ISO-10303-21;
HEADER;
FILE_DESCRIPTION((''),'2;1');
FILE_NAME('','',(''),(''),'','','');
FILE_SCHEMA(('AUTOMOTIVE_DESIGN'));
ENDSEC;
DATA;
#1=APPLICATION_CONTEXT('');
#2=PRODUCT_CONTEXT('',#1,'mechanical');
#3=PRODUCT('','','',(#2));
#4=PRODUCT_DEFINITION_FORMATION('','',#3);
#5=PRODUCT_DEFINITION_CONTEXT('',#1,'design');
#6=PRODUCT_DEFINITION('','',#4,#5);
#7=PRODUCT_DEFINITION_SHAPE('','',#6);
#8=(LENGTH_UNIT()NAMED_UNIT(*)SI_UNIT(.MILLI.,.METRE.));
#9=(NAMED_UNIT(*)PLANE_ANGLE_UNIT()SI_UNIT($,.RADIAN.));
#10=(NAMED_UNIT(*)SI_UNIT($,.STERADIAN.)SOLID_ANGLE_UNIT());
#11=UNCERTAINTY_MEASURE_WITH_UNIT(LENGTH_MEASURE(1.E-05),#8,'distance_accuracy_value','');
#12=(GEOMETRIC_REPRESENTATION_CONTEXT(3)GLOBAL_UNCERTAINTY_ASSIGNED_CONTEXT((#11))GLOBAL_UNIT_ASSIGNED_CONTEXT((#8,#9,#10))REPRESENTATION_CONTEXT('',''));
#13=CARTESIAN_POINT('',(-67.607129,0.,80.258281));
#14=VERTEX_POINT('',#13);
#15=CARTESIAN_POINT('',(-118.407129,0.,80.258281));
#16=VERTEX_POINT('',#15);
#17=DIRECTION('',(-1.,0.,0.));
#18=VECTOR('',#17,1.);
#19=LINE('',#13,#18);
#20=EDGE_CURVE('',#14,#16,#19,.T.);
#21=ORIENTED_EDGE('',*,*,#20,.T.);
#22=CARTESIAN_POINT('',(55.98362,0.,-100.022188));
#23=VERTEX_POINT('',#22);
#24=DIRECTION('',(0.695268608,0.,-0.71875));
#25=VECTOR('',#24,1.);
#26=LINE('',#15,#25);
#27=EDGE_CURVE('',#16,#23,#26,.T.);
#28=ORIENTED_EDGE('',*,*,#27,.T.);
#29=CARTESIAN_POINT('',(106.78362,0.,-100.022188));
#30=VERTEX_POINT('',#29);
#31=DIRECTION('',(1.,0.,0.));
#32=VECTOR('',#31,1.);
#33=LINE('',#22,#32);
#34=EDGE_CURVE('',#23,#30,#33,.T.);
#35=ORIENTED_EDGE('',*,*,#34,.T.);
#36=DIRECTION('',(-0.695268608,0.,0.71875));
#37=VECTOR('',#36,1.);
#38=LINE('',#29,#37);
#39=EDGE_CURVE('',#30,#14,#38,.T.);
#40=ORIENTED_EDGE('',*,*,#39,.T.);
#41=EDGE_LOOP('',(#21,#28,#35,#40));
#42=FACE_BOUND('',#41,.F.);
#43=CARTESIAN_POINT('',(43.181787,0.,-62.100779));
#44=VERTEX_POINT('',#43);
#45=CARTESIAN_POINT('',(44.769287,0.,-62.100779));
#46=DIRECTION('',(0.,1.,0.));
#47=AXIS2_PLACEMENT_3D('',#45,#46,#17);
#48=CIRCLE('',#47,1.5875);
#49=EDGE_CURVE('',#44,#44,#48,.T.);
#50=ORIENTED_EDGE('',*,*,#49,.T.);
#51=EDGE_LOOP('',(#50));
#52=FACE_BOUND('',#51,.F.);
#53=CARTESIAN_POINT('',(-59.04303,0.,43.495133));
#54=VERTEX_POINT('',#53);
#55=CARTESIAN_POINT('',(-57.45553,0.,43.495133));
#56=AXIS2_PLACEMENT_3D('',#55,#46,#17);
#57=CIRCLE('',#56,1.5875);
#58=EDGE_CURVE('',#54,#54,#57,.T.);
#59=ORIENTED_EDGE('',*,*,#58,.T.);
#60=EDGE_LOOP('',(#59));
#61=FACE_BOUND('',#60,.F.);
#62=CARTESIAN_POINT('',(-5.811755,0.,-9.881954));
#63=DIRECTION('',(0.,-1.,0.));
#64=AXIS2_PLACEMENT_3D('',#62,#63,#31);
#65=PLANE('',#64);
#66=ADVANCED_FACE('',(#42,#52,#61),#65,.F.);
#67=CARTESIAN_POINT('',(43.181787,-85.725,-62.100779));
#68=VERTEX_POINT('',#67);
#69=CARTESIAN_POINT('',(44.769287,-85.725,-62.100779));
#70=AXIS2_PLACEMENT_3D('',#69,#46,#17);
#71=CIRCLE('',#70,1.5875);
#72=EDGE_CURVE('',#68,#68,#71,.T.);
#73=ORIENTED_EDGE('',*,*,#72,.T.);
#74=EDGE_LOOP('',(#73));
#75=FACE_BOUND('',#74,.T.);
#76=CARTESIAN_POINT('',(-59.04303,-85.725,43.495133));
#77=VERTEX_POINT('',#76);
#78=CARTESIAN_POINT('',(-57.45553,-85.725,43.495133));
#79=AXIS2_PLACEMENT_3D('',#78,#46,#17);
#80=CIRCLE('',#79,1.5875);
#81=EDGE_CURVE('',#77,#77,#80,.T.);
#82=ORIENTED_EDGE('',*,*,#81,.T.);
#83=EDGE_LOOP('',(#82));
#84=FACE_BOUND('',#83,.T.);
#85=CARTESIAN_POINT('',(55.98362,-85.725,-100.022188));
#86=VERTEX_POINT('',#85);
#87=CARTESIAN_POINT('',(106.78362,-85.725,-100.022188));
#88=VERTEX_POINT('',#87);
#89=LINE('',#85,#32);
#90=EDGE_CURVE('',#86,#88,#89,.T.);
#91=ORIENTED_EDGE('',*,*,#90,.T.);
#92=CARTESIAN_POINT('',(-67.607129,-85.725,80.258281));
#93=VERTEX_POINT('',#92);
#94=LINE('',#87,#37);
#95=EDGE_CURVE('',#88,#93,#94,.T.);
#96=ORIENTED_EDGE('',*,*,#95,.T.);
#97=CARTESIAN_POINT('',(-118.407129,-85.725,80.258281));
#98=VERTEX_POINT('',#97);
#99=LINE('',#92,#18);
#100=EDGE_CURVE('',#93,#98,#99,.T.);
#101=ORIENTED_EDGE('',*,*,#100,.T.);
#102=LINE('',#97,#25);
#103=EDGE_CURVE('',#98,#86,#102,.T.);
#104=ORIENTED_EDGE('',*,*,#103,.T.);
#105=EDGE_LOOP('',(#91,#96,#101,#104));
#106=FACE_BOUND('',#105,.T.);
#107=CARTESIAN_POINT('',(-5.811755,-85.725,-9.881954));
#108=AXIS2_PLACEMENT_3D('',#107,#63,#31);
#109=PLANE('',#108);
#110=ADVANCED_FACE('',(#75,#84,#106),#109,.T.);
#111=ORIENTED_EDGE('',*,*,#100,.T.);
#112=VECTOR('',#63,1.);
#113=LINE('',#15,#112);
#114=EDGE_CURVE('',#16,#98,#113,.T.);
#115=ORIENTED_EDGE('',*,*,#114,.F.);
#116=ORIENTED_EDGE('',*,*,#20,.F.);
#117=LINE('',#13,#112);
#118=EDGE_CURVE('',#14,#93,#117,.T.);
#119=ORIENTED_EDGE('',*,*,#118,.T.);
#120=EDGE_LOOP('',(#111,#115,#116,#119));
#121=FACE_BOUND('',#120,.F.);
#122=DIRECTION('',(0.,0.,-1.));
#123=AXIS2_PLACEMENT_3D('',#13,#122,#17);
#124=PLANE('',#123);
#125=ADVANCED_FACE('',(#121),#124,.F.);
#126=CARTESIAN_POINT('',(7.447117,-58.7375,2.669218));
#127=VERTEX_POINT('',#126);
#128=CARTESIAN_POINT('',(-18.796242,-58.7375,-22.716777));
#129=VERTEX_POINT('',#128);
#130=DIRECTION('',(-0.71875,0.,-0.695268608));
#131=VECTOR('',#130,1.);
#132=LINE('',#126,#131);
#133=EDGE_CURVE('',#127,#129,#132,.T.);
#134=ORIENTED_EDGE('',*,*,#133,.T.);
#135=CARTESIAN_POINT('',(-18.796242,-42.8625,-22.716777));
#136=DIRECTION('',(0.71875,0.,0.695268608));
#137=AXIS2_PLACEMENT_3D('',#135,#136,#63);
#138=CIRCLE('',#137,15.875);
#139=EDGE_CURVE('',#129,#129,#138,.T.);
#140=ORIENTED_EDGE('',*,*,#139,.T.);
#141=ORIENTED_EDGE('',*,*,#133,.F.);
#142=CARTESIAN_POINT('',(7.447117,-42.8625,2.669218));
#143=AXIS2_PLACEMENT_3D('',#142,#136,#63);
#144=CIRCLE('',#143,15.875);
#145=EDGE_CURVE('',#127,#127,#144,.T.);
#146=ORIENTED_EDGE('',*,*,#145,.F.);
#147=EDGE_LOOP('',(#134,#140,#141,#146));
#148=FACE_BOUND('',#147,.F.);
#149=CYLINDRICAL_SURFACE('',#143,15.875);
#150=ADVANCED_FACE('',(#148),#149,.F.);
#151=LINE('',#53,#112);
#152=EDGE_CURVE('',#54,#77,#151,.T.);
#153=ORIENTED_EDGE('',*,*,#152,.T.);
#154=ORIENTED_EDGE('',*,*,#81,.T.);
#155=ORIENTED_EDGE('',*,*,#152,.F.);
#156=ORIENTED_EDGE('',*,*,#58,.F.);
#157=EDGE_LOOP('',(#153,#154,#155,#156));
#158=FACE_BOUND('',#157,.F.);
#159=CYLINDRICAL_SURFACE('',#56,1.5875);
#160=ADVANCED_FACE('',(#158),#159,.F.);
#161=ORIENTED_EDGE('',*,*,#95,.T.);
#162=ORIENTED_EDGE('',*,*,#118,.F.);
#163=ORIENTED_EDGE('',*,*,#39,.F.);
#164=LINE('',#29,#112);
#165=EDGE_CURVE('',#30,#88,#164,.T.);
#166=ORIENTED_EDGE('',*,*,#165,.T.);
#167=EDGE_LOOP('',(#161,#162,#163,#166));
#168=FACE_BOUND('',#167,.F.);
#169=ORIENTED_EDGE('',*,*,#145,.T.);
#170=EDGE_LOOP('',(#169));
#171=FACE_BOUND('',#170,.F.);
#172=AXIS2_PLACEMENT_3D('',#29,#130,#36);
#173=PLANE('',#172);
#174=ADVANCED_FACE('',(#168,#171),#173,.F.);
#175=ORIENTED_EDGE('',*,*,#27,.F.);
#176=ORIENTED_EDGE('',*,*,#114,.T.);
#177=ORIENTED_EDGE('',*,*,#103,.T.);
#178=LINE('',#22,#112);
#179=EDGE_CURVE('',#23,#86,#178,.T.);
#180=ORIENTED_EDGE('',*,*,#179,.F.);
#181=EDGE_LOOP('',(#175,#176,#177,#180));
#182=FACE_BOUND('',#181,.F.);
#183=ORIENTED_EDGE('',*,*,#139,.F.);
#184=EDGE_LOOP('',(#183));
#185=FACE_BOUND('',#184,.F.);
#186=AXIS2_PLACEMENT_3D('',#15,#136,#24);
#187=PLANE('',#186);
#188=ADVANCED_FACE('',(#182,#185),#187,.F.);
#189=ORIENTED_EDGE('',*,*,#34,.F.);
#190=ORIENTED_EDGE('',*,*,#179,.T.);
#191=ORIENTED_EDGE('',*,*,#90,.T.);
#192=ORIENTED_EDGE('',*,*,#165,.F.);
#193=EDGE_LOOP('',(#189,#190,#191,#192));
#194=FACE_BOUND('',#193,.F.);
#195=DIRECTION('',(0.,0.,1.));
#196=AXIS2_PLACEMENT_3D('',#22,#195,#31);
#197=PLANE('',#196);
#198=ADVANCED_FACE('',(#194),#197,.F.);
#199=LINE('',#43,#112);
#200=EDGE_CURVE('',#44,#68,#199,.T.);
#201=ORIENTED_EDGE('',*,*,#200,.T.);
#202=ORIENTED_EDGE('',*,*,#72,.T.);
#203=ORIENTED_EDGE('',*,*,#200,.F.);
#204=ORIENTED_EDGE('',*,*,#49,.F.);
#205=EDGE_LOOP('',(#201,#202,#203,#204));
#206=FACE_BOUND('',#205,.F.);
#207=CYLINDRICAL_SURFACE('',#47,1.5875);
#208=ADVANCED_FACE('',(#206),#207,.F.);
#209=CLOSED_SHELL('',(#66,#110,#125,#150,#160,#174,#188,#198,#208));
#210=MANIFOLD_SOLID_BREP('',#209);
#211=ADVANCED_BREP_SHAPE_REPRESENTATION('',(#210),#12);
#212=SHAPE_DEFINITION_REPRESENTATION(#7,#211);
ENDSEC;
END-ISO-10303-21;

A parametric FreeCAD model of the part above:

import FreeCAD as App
import Part
import Sketcher
Q = App.Units.Quantity

doc = App.newDocument("Part")
body = doc.addObject("PartDesign::Body", "Body")

sketch1 = body.newObject("Sketcher::SketchObject", "Sketch")
sketch1.AttachmentSupport = (doc.getObject("XZ_Plane"), [""])
sketch1.MapMode = "FlatFace"
sketch1.addGeometry(Part.LineSegment(App.Vector(-68, 80, 0), App.Vector(-118, 80, 0)), False)
sketch1.addGeometry(Part.LineSegment(App.Vector(-118, 80, 0), App.Vector(56, -100, 0)), False)
sketch1.addGeometry(Part.LineSegment(App.Vector(56, -100, 0), App.Vector(107, -100, 0)), False)
sketch1.addGeometry(Part.LineSegment(App.Vector(107, -100, 0), App.Vector(-68, 80, 0)), False)
sketch1.addConstraint(Sketcher.Constraint("Coincident", 0, 2, 1, 1))
sketch1.addConstraint(Sketcher.Constraint("Coincident", 1, 2, 2, 1))
sketch1.addConstraint(Sketcher.Constraint("Coincident", 2, 2, 3, 1))
sketch1.addConstraint(Sketcher.Constraint("Coincident", 3, 2, 0, 1))
sketch1.addConstraint(Sketcher.Constraint("Horizontal", 0))
sketch1.addConstraint(Sketcher.Constraint("Horizontal", 2))
sketch1.addConstraint(Sketcher.Constraint("Parallel", 1, 3))
sketch1.addConstraint(Sketcher.Constraint("DistanceX", 0, 2, 0, 1, Q("2 in")))
sketch1.addConstraint(Sketcher.Constraint("Distance", 1, Q("9.875 in")))
sketch1.addConstraint(Sketcher.Constraint("DistanceX", 0, 2, -1, 1, Q("118.407129 mm")))
sketch1.addConstraint(Sketcher.Constraint("DistanceY", -1, 1, 0, 2, Q("80.258281 mm")))
sketch1.addConstraint(Sketcher.Constraint("DistanceX", -1, 1, 1, 2, Q("55.98362 mm")))
pad1 = body.newObject("PartDesign::Pad", "Pad")
pad1.Profile = sketch1
pad1.Length = Q("3.375 in")

sketch2 = body.newObject("Sketcher::SketchObject", "Sketch001")
sketch2.Placement = App.Placement(App.Vector(5.181066, 0, 5.011801), App.Rotation(App.Vector(0, 1, 0), App.Vector(-0.695268608, 0, 0.71875), App.Vector(0.71875, 0, 0.695268608), "ZXY"))
sketch2.addGeometry(Part.Circle(App.Vector(-43, -3, 0), App.Vector(0, 0, 1), 16), False)
sketch2.addConstraint(Sketcher.Constraint("Diameter", 0, Q("1.25 in")))
sketch2.addConstraint(Sketcher.Constraint("DistanceX", 0, 3, -1, 1, Q("1.6875 in")))
sketch2.addConstraint(Sketcher.Constraint("DistanceY", 0, 3, -1, 1, Q("3.259246 mm")))
pocket1 = body.newObject("PartDesign::Pocket", "Pocket")
pocket1.Profile = sketch2
pocket1.Length = Q("2 in")

sketch3 = body.newObject("Sketcher::SketchObject", "Sketch002")
sketch3.AttachmentSupport = (doc.getObject("XZ_Plane"), [""])
sketch3.MapMode = "FlatFace"
sketch3.addGeometry(Part.Circle(App.Vector(44.8, -62.1, 0), App.Vector(0, 0, 1), 1.6), False)
sketch3.addGeometry(Part.Circle(App.Vector(-57.5, 43.5, 0), App.Vector(0, 0, 1), 1.6), False)
sketch3.addConstraint(Sketcher.Constraint("Equal", 0, 1))
sketch3.addConstraint(Sketcher.Constraint("Diameter", 0, Q("0.125 in")))
sketch3.addConstraint(Sketcher.Constraint("DistanceY", 0, 3, -1, 1, Q("62.100779 mm")))
sketch3.addConstraint(Sketcher.Constraint("DistanceX", 1, 3, -1, 1, Q("57.45553 mm")))
sketch3.addConstraint(Sketcher.Constraint("DistanceX", -1, 1, 0, 3, Q("44.769287 mm")))
sketch3.addConstraint(Sketcher.Constraint("DistanceY", -1, 1, 1, 3, Q("43.495133 mm")))
pocket2 = body.newObject("PartDesign::Pocket", "Pocket001")
pocket2.Profile = sketch3
pocket2.Length = Q("5 in")
pocket2.Reversed = True

doc.recompute()
